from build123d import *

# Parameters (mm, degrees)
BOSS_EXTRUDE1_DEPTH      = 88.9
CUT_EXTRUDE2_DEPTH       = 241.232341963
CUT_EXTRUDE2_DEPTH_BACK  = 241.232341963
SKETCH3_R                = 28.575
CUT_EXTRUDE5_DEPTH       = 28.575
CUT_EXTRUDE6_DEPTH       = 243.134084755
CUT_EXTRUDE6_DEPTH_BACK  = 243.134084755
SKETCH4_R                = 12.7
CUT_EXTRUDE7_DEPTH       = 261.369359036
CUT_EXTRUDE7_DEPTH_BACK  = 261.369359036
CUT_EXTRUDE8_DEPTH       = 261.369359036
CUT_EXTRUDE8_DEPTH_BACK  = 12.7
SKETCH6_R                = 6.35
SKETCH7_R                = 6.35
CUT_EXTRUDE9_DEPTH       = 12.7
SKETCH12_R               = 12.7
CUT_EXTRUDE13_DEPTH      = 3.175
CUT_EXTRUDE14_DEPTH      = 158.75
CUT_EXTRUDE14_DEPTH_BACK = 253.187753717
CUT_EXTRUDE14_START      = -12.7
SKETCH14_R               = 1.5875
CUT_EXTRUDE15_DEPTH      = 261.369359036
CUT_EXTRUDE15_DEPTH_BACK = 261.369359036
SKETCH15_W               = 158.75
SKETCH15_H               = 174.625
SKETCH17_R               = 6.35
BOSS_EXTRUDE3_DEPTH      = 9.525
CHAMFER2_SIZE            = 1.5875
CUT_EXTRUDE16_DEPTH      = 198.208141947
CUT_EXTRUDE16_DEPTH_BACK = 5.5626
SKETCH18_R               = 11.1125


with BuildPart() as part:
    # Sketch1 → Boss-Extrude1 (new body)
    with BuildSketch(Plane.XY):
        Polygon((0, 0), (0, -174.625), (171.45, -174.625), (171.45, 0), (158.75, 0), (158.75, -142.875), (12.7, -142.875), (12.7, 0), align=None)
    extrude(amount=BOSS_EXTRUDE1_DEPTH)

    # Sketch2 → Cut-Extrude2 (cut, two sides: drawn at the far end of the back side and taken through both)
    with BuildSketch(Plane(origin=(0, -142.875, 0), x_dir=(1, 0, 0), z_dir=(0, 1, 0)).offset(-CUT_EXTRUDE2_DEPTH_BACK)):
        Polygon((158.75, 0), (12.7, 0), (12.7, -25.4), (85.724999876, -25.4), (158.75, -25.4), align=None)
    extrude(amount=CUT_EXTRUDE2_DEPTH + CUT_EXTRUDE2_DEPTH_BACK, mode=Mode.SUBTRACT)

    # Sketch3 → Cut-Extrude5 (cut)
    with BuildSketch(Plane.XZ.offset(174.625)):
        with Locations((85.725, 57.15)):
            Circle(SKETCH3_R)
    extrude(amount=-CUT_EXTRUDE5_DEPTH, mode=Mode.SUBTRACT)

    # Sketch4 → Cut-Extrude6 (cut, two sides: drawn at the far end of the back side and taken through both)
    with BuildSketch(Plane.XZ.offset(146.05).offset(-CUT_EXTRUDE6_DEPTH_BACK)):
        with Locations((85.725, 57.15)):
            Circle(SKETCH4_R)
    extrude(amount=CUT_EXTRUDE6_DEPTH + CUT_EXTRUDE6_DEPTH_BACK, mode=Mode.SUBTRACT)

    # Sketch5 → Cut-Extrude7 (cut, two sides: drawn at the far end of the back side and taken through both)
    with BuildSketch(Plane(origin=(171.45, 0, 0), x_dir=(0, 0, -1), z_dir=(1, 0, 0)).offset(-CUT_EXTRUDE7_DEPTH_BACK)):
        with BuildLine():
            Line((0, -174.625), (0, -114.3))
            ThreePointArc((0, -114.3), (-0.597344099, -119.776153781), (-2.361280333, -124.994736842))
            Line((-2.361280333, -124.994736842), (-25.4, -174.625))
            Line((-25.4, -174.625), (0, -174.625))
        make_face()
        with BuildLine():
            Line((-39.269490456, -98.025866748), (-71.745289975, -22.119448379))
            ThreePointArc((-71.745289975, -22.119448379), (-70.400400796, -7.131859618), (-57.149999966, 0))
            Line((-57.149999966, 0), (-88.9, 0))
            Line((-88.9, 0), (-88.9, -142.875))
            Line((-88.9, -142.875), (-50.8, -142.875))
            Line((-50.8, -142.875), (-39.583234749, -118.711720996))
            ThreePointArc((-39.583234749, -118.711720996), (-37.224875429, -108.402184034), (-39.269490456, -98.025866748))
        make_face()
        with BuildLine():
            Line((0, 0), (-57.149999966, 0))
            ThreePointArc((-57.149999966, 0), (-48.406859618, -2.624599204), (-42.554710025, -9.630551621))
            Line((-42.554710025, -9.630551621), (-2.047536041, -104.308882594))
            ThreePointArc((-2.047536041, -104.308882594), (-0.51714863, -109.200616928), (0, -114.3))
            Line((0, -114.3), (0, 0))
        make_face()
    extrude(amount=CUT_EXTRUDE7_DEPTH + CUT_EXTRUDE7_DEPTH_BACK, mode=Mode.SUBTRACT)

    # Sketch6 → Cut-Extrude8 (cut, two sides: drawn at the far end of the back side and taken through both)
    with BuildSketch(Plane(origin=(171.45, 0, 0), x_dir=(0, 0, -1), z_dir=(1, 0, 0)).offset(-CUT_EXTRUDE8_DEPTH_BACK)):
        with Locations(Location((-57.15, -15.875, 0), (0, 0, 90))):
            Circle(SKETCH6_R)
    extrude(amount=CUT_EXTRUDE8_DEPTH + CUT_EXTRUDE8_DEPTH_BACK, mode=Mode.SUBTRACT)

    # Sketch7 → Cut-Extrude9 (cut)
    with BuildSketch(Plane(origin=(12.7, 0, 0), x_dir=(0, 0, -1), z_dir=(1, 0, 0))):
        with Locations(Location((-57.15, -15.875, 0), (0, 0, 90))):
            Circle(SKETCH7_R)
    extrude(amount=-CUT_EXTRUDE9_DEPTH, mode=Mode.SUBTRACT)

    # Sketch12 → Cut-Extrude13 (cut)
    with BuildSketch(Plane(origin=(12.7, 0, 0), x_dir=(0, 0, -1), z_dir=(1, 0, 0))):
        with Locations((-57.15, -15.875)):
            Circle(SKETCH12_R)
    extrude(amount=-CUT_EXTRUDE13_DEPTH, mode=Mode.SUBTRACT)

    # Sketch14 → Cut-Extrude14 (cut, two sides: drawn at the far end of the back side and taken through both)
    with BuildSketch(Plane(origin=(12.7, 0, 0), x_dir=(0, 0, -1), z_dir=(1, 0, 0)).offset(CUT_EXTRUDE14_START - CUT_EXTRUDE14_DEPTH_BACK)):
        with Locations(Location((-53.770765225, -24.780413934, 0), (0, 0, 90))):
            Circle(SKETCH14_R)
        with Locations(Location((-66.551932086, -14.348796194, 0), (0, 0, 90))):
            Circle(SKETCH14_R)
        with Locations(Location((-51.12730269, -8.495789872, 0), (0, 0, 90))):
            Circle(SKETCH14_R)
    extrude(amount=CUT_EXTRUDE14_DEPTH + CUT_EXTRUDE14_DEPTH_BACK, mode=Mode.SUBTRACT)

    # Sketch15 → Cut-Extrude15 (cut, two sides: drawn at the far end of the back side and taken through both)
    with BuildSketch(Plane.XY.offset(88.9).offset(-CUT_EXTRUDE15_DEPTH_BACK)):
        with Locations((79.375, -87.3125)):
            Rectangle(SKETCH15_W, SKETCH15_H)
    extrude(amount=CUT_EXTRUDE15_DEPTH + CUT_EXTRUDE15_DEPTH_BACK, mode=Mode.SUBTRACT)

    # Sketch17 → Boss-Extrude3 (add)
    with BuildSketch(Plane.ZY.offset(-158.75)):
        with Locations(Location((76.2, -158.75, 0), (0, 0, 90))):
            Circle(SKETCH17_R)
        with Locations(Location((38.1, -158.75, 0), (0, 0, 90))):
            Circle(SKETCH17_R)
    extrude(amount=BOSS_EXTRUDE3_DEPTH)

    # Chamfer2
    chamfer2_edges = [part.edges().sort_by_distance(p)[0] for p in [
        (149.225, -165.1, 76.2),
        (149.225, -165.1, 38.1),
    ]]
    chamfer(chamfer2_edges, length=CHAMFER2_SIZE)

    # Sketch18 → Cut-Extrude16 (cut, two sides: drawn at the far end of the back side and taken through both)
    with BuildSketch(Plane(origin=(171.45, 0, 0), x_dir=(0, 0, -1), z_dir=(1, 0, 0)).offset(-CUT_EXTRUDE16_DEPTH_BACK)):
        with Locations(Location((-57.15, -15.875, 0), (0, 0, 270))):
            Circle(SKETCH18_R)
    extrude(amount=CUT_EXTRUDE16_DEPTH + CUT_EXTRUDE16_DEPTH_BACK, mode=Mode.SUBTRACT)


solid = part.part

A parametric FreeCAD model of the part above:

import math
import FreeCAD as App
import Part
import Sketcher
from FreeCAD import Vector
Q = App.Units.Quantity


def edges_at(feature, points):
    """Names of the edges that pass closest to the given points."""
    edges = feature.Shape.Edges
    near = lambda p: min(range(len(edges)), key=lambda i: edges[i].distToShape(Part.Vertex(*p))[0])
    return sorted({f"Edge{near(p) + 1}" for p in points})


def add_polygon(sketch, points):
    """Adds a closed chain of lines whose ends are joined by coincident constraints."""
    first, n = sketch.GeometryCount, len(points)
    for a, b in zip(points, points[1:] + points[:1]):
        sketch.addGeometry(Part.LineSegment(App.Vector(*a, 0), App.Vector(*b, 0)), False)
    for i in range(n):
        sketch.addConstraint(Sketcher.Constraint("Coincident", first + i, 2, first + (i + 1) % n, 1))

doc = App.newDocument("Part")
body = doc.addObject("PartDesign::Body", "Body")

# Sketch on XY plane
sketch1 = doc.addObject("Sketcher::SketchObject", "Sketch")
body.addObject(sketch1)
sketch1.AttachmentSupport = (doc.XY_Plane, [""])
sketch1.MapMode = "FlatFace"
add_polygon(sketch1, [(0, 0), (0, -174.625), (171.45, -174.625), (171.45, 0), (158.75, 0), (158.75, -142.875), (12.7, -142.875), (12.7, 0)])  # lines 0-7
sketch1.addConstraint([
    Sketcher.Constraint("Vertical", 0),
    Sketcher.Constraint("Horizontal", 1),
    Sketcher.Constraint("Vertical", 2),
    Sketcher.Constraint("Horizontal", 3),
    Sketcher.Constraint("Vertical", 4),
    Sketcher.Constraint("Horizontal", 5),
    Sketcher.Constraint("Vertical", 6),
    Sketcher.Constraint("Horizontal", 7),
    Sketcher.Constraint("Coincident", 7, 2, -1, 1),
    Sketcher.Constraint("PointOnObject", 2, 2, -1),
    Sketcher.Constraint("Equal", 3, 7),
    Sketcher.Constraint("DistanceX", 3, 2, 3, 1, Q("0.5 in")),
    Sketcher.Constraint("DistanceX", 1, 1, 1, 2, Q("6.75 in")),
    Sketcher.Constraint("DistanceY", 0, 2, 0, 1, Q("6.875 in")),
    Sketcher.Constraint("DistanceY", 4, 2, 4, 1, Q("5.625 in")),
])
pad1 = doc.addObject("PartDesign::Pad", "Pad")
body.addObject(pad1)
pad1.Profile = sketch1
pad1.Length = Q("3.5 in")

# Sketch on XZ plane
sketch2 = doc.addObject("Sketcher::SketchObject", "Sketch001")
body.addObject(sketch2)
sketch2.AttachmentSupport = (doc.XZ_Plane, [""])
sketch2.MapMode = "FlatFace"
sketch2.AttachmentOffset = App.Placement(Vector(0, 0, 5.625 * 25.4), App.Rotation())
add_polygon(sketch2, [(158.75, 0), (12.7, 0), (12.7, 25.4), (158.75, 25.4)])  # lines 0-3
sketch2.addConstraint([
    Sketcher.Constraint("Horizontal", 0),
    Sketcher.Constraint("Vertical", 1),
    Sketcher.Constraint("Horizontal", 2),
    Sketcher.Constraint("Vertical", 3),
    Sketcher.Constraint("PointOnObject", 0, 2, -1),
    Sketcher.Constraint("DistanceY", 1, 1, 1, 2, Q("1 in")),
    Sketcher.Constraint("DistanceX", 0, 2, 0, 1, Q("5.75 in")),
    Sketcher.Constraint("DistanceX", -1, 1, 0, 2, Q("0.5 in")),
])
pocket1 = doc.addObject("PartDesign::Pocket", "Pocket")
body.addObject(pocket1)
pocket1.Profile = sketch2
pocket1.Type = "ThroughAll"
pocket1.Midplane = True

# Sketch on XZ plane
sketch3 = doc.addObject("Sketcher::SketchObject", "Sketch002")
body.addObject(sketch3)
sketch3.AttachmentSupport = (doc.XZ_Plane, [""])
sketch3.MapMode = "FlatFace"
sketch3.AttachmentOffset = App.Placement(Vector(0, 0, 6.875 * 25.4), App.Rotation())
sketch3.addGeometry(Part.Circle(Vector(85.725, 57.15, 0), Vector(0, 0, 1), 28.575), False)
sketch3.addConstraint([
    Sketcher.Constraint("Diameter", 0, Q("2.25 in")),
    Sketcher.Constraint("DistanceY", -1, 1, 0, 3, Q("2.25 in")),
    Sketcher.Constraint("DistanceX", -1, 1, 0, 3, Q("3.375 in")),
])
pocket2 = doc.addObject("PartDesign::Pocket", "Pocket001")
body.addObject(pocket2)
pocket2.Profile = sketch3
pocket2.Length = Q("1.125 in")

# Sketch on XZ plane
sketch4 = doc.addObject("Sketcher::SketchObject", "Sketch003")
body.addObject(sketch4)
sketch4.AttachmentSupport = (doc.XZ_Plane, [""])
sketch4.MapMode = "FlatFace"
sketch4.AttachmentOffset = App.Placement(Vector(0, 0, 5.75 * 25.4), App.Rotation())
sketch4.addGeometry(Part.Circle(Vector(85.725, 57.15, 0), Vector(0, 0, 1), 12.7), False)
sketch4.addConstraint([
    Sketcher.Constraint("Diameter", 0, Q("1 in")),
    Sketcher.Constraint("DistanceY", -1, 1, 0, 3, Q("2.25 in")),
    Sketcher.Constraint("DistanceX", -1, 1, 0, 3, Q("3.375 in")),
])
pocket3 = doc.addObject("PartDesign::Pocket", "Pocket002")
body.addObject(pocket3)
pocket3.Profile = sketch4
pocket3.Type = "ThroughAll"
pocket3.Midplane = True

# Sketch on YZ plane
sketch5 = doc.addObject("Sketcher::SketchObject", "Sketch004")
body.addObject(sketch5)
sketch5.AttachmentSupport = (doc.YZ_Plane, [""])
sketch5.MapMode = "FlatFace"
sketch5.AttachmentOffset = App.Placement(Vector(0, 0, 6.75 * 25.4), App.Rotation())
sketch5.addGeometry([
    Part.LineSegment(Vector(-174.625, 0, 0), Vector(-114.3, 0, 0)),  # 0
    Part.ArcOfCircle(Part.Circle(Vector(-114.3, 25.4, 0), Vector(0, 0, 1), 25.4), math.radians(-114.901062), math.radians(-90)),  # 1
    Part.LineSegment(Vector(-124.994737, 2.36128, 0), Vector(-174.625, 25.4, 0)),  # 2
    Part.LineSegment(Vector(-174.625, 25.4, 0), Vector(-174.625, 0, 0)),  # 3
    Part.LineSegment(Vector(-98.025867, 39.26949, 0), Vector(-22.119448, 71.74529, 0)),  # 4
    Part.ArcOfCircle(Part.Circle(Vector(-15.875, 57.15, 0), Vector(0, 0, 1), 15.875), math.radians(0), math.radians(113.163175)),  # 5
    Part.LineSegment(Vector(0, 57.15, 0), Vector(0, 88.9, 0)),  # 6
    Part.LineSegment(Vector(0, 88.9, 0), Vector(-142.875, 88.9, 0)),  # 7
    Part.LineSegment(Vector(-142.875, 88.9, 0), Vector(-142.875, 50.8, 0)),  # 8
    Part.LineSegment(Vector(-142.875, 50.8, 0), Vector(-118.711721, 39.583235, 0)),  # 9
    Part.ArcOfCircle(Part.Circle(Vector(-108.016984, 62.621954, 0), Vector(0, 0, 1), 25.4), math.radians(-114.901062), math.radians(-66.836825)),  # 10
    Part.LineSegment(Vector(0, 0, 0), Vector(0, 57.15, 0)),  # 11
    Part.ArcOfCircle(Part.Circle(Vector(-15.875, 57.15, 0), Vector(0, 0, 1), 15.875), math.radians(-66.836825), math.radians(0)),  # 12
    Part.LineSegment(Vector(-9.630552, 42.55471, 0), Vector(-104.308883, 2.047536, 0)),  # 13
    Part.ArcOfCircle(Part.Circle(Vector(-114.3, 25.4, 0), Vector(0, 0, 1), 25.4), math.radians(-90), math.radians(-66.836825)),  # 14
    Part.LineSegment(Vector(-114.3, 0, 0), Vector(0, 0, 0)),  # 15
], False)
sketch5.addConstraint([
    Sketcher.Constraint("Tangent", 0, 2, 1, 2),
    Sketcher.Constraint("Tangent", 1, 1, 2, 1),
    Sketcher.Constraint("Coincident", 2, 2, 3, 1),
    Sketcher.Constraint("Coincident", 3, 2, 0, 1),
    Sketcher.Constraint("Tangent", 4, 2, 5, 2),
    Sketcher.Constraint("Tangent", 5, 1, 6, 1),
    Sketcher.Constraint("Coincident", 6, 2, 7, 1),
    Sketcher.Constraint("Coincident", 7, 2, 8, 1),
    Sketcher.Constraint("Coincident", 8, 2, 9, 1),
    Sketcher.Constraint("Tangent", 9, 2, 10, 1),
    Sketcher.Constraint("Tangent", 10, 2, 4, 1),
    Sketcher.Constraint("Tangent", 11, 2, 12, 2),
    Sketcher.Constraint("Tangent", 12, 1, 13, 1),
    Sketcher.Constraint("Tangent", 13, 2, 14, 2),
    Sketcher.Constraint("Tangent", 14, 1, 15, 1),
    Sketcher.Constraint("Coincident", 15, 2, 11, 1),
    Sketcher.Constraint("Horizontal", 0),
    Sketcher.Constraint("Vertical", 3),
    Sketcher.Constraint("Vertical", 6),
    Sketcher.Constraint("Horizontal", 7),
    Sketcher.Constraint("Vertical", 8),
    Sketcher.Constraint("Vertical", 11),
    Sketcher.Constraint("Horizontal", 15),
    Sketcher.Constraint("Coincident", 15, 2, -1, 1),
    Sketcher.Constraint("Coincident", 12, 3, 5, 3),
    Sketcher.Constraint("Coincident", 14, 3, 1, 3),
    Sketcher.Constraint("Equal", 1, 10),
    Sketcher.Constraint("Equal", 5, 12),
    Sketcher.Constraint("Equal", 10, 14),
    Sketcher.Constraint("Parallel", 2, 9),
    Sketcher.Constraint("Parallel", 4, 13),
    Sketcher.Constraint("Horizontal", 14, 3, 2, 2),
    Sketcher.Constraint("Radius", 1, Q("1 in")),
    Sketcher.Constraint("DistanceX", 15, 1, 15, 2, Q("4.5 in")),
    Sketcher.Constraint("DistanceY", 8, 2, 8, 1, Q("1.5 in")),
    Sketcher.Constraint("DistanceY", -1, 1, 8, 2, Q("2 in")),
    Sketcher.Constraint("Radius", 5, Q("0.625 in")),
    Sketcher.Constraint("DistanceY", 6, 1, 6, 2, Q("1.25 in")),
    Sketcher.Constraint("DistanceX", 0, 1, 0, 2, Q("2.375 in")),
    Sketcher.Constraint("DistanceX", 7, 2, 7, 1, Q("5.625 in")),
])
pocket4 = doc.addObject("PartDesign::Pocket", "Pocket003")
body.addObject(pocket4)
pocket4.Profile = sketch5
pocket4.Type = "ThroughAll"
pocket4.Midplane = True

# Sketch on YZ plane
sketch6 = doc.addObject("Sketcher::SketchObject", "Sketch005")
body.addObject(sketch6)
sketch6.AttachmentSupport = (doc.YZ_Plane, [""])
sketch6.MapMode = "FlatFace"
sketch6.AttachmentOffset = App.Placement(Vector(0, 0, 6.75 * 25.4), App.Rotation())
sketch6.addGeometry(Part.Circle(Vector(-15.875, 57.15, 0), Vector(0, 0, 1), 6.35), False)
sketch6.addConstraint([
    Sketcher.Constraint("Diameter", 0, Q("0.5 in")),
    Sketcher.Constraint("DistanceY", -1, 1, 0, 3, Q("2.25 in")),
    Sketcher.Constraint("DistanceX", 0, 3, -1, 1, Q("0.625 in")),
])
pocket5 = doc.addObject("PartDesign::Pocket", "Pocket004")
body.addObject(pocket5)
pocket5.Profile = sketch6
pocket5.Type = "TwoLengths"
pocket5.Length = 261.369359
pocket5.Length2 = Q("0.5 in")
pocket5.Reversed = True

# Sketch on YZ plane
sketch7 = doc.addObject("Sketcher::SketchObject", "Sketch006")
body.addObject(sketch7)
sketch7.AttachmentSupport = (doc.YZ_Plane, [""])
sketch7.MapMode = "FlatFace"
sketch7.AttachmentOffset = App.Placement(Vector(0, 0, 0.5 * 25.4), App.Rotation())
sketch7.addGeometry(Part.Circle(Vector(-15.875, 57.15, 0), Vector(0, 0, 1), 6.35), False)
sketch7.addConstraint([
    Sketcher.Constraint("Diameter", 0, Q("0.5 in")),
    Sketcher.Constraint("DistanceY", -1, 1, 0, 3, Q("2.25 in")),
    Sketcher.Constraint("DistanceX", 0, 3, -1, 1, Q("0.625 in")),
])
pocket6 = doc.addObject("PartDesign::Pocket", "Pocket005")
body.addObject(pocket6)
pocket6.Profile = sketch7
pocket6.Length = Q("0.5 in")

# Sketch on YZ plane
sketch8 = doc.addObject("Sketcher::SketchObject", "Sketch007")
body.addObject(sketch8)
sketch8.AttachmentSupport = (doc.YZ_Plane, [""])
sketch8.MapMode = "FlatFace"
sketch8.AttachmentOffset = App.Placement(Vector(0, 0, 0.5 * 25.4), App.Rotation())
sketch8.addGeometry(Part.Circle(Vector(-15.875, 57.15, 0), Vector(0, 0, 1), 12.7), False)
sketch8.addConstraint([
    Sketcher.Constraint("Diameter", 0, Q("1 in")),
    Sketcher.Constraint("DistanceY", -1, 1, 0, 3, Q("2.25 in")),
    Sketcher.Constraint("DistanceX", 0, 3, -1, 1, Q("0.625 in")),
])
pocket7 = doc.addObject("PartDesign::Pocket", "Pocket006")
body.addObject(pocket7)
pocket7.Profile = sketch8
pocket7.Length = Q("0.125 in")

# Sketch on YZ plane
sketch9 = doc.addObject("Sketcher::SketchObject", "Sketch008")
body.addObject(sketch9)
sketch9.AttachmentSupport = (doc.YZ_Plane, [""])
sketch9.MapMode = "FlatFace"
sketch9.addGeometry([
    Part.Circle(Vector(-24.780414, 53.770765, 0), Vector(0, 0, 1), 1.5875),
    Part.Circle(Vector(-14.348796, 66.551932, 0), Vector(0, 0, 1), 1.5875),
    Part.Circle(Vector(-8.49579, 51.127303, 0), Vector(0, 0, 1), 1.5875),
], False)
sketch9.addConstraint([
    Sketcher.Constraint("Equal", 0, 1),
    Sketcher.Constraint("Equal", 1, 2),
    Sketcher.Constraint("Diameter", 0, Q("0.125 in")),
    Sketcher.Constraint("DistanceX", 2, 3, -1, 1, Q("8.49579 mm")),
    Sketcher.Constraint("DistanceY", 2, 3, 1, 3, Q("15.424629 mm")),
    Sketcher.Constraint("DistanceX", 0, 3, -1, 1, Q("24.780414 mm")),
    Sketcher.Constraint("DistanceY", -1, 1, 0, 3, Q("53.770765 mm")),
    Sketcher.Constraint("DistanceX", 1, 3, -1, 1, Q("14.348796 mm")),
    Sketcher.Constraint("DistanceY", -1, 1, 1, 3, Q("66.551932 mm")),
])
pocket8 = doc.addObject("PartDesign::Pocket", "Pocket007")
body.addObject(pocket8)
pocket8.Profile = sketch9
pocket8.Type = "TwoLengths"
pocket8.Length = Q("6.25 in")
pocket8.Length2 = 253.187754
pocket8.Reversed = True

# Sketch on XY plane
sketch10 = doc.addObject("Sketcher::SketchObject", "Sketch009")
body.addObject(sketch10)
sketch10.AttachmentSupport = (doc.XY_Plane, [""])
sketch10.MapMode = "FlatFace"
sketch10.AttachmentOffset = App.Placement(Vector(0, 0, 3.5 * 25.4), App.Rotation())
add_polygon(sketch10, [(0, 0), (0, -174.625), (158.75, -174.625), (158.75, 0)])  # lines 0-3
sketch10.addConstraint([
    Sketcher.Constraint("Vertical", 0),
    Sketcher.Constraint("Horizontal", 1),
    Sketcher.Constraint("Vertical", 2),
    Sketcher.Constraint("Horizontal", 3),
    Sketcher.Constraint("Coincident", 3, 2, -1, 1),
    Sketcher.Constraint("DistanceX", 1, 1, 1, 2, Q("6.25 in")),
    Sketcher.Constraint("DistanceY", 0, 2, 0, 1, Q("6.875 in")),
])
pocket9 = doc.addObject("PartDesign::Pocket", "Pocket008")
body.addObject(pocket9)
pocket9.Profile = sketch10
pocket9.Type = "ThroughAll"
pocket9.Midplane = True

# Sketch on YZ plane
sketch11 = doc.addObject("Sketcher::SketchObject", "Sketch010")
body.addObject(sketch11)
sketch11.AttachmentSupport = (doc.YZ_Plane, [""])
sketch11.MapMode = "FlatFace"
sketch11.AttachmentOffset = App.Placement(Vector(0, 0, 6.25 * 25.4), App.Rotation())
sketch11.addGeometry([
    Part.Circle(Vector(-158.75, 76.2, 0), Vector(0, 0, 1), 6.35),
    Part.Circle(Vector(-158.75, 38.1, 0), Vector(0, 0, 1), 6.35),
], False)
sketch11.addConstraint([
    Sketcher.Constraint("Equal", 0, 1),
    Sketcher.Constraint("Vertical", 0, 3, 1, 3),
    Sketcher.Constraint("Diameter", 0, Q("0.5 in")),
    Sketcher.Constraint("DistanceY", -1, 1, 0, 3, Q("3 in")),
    Sketcher.Constraint("DistanceY", -1, 1, 1, 3, Q("1.5 in")),
    Sketcher.Constraint("DistanceX", 0, 3, -1, 1, Q("6.25 in")),
])
pad2 = doc.addObject("PartDesign::Pad", "Pad001")
body.addObject(pad2)
pad2.Profile = sketch11
pad2.Length = Q("0.375 in")
pad2.Reversed = True
doc.recompute()

chamfer = doc.addObject("PartDesign::Chamfer", "Chamfer")
body.addObject(chamfer)
chamfer.Base = (pad2, edges_at(pad2, [(149.225, -165.1, 76.2), (149.225, -165.1, 38.1)]))
chamfer.Size = Q("0.0625 in")

# Sketch on YZ plane
sketch12 = doc.addObject("Sketcher::SketchObject", "Sketch011")
body.addObject(sketch12)
sketch12.AttachmentSupport = (doc.YZ_Plane, [""])
sketch12.MapMode = "FlatFace"
sketch12.AttachmentOffset = App.Placement(Vector(0, 0, 6.75 * 25.4), App.Rotation())
sketch12.addGeometry(Part.Circle(Vector(-15.875, 57.15, 0), Vector(0, 0, 1), 11.1125), False)
sketch12.addConstraint([
    Sketcher.Constraint("Diameter", 0, Q("0.875 in")),
    Sketcher.Constraint("DistanceY", -1, 1, 0, 3, Q("2.25 in")),
    Sketcher.Constraint("DistanceX", 0, 3, -1, 1, Q("0.625 in")),
])
pocket10 = doc.addObject("PartDesign::Pocket", "Pocket009")
body.addObject(pocket10)
pocket10.Profile = sketch12
pocket10.Type = "TwoLengths"
pocket10.Length = 198.208142
pocket10.Length2 = Q("0.219 in")
pocket10.Reversed = True

doc.recompute()
